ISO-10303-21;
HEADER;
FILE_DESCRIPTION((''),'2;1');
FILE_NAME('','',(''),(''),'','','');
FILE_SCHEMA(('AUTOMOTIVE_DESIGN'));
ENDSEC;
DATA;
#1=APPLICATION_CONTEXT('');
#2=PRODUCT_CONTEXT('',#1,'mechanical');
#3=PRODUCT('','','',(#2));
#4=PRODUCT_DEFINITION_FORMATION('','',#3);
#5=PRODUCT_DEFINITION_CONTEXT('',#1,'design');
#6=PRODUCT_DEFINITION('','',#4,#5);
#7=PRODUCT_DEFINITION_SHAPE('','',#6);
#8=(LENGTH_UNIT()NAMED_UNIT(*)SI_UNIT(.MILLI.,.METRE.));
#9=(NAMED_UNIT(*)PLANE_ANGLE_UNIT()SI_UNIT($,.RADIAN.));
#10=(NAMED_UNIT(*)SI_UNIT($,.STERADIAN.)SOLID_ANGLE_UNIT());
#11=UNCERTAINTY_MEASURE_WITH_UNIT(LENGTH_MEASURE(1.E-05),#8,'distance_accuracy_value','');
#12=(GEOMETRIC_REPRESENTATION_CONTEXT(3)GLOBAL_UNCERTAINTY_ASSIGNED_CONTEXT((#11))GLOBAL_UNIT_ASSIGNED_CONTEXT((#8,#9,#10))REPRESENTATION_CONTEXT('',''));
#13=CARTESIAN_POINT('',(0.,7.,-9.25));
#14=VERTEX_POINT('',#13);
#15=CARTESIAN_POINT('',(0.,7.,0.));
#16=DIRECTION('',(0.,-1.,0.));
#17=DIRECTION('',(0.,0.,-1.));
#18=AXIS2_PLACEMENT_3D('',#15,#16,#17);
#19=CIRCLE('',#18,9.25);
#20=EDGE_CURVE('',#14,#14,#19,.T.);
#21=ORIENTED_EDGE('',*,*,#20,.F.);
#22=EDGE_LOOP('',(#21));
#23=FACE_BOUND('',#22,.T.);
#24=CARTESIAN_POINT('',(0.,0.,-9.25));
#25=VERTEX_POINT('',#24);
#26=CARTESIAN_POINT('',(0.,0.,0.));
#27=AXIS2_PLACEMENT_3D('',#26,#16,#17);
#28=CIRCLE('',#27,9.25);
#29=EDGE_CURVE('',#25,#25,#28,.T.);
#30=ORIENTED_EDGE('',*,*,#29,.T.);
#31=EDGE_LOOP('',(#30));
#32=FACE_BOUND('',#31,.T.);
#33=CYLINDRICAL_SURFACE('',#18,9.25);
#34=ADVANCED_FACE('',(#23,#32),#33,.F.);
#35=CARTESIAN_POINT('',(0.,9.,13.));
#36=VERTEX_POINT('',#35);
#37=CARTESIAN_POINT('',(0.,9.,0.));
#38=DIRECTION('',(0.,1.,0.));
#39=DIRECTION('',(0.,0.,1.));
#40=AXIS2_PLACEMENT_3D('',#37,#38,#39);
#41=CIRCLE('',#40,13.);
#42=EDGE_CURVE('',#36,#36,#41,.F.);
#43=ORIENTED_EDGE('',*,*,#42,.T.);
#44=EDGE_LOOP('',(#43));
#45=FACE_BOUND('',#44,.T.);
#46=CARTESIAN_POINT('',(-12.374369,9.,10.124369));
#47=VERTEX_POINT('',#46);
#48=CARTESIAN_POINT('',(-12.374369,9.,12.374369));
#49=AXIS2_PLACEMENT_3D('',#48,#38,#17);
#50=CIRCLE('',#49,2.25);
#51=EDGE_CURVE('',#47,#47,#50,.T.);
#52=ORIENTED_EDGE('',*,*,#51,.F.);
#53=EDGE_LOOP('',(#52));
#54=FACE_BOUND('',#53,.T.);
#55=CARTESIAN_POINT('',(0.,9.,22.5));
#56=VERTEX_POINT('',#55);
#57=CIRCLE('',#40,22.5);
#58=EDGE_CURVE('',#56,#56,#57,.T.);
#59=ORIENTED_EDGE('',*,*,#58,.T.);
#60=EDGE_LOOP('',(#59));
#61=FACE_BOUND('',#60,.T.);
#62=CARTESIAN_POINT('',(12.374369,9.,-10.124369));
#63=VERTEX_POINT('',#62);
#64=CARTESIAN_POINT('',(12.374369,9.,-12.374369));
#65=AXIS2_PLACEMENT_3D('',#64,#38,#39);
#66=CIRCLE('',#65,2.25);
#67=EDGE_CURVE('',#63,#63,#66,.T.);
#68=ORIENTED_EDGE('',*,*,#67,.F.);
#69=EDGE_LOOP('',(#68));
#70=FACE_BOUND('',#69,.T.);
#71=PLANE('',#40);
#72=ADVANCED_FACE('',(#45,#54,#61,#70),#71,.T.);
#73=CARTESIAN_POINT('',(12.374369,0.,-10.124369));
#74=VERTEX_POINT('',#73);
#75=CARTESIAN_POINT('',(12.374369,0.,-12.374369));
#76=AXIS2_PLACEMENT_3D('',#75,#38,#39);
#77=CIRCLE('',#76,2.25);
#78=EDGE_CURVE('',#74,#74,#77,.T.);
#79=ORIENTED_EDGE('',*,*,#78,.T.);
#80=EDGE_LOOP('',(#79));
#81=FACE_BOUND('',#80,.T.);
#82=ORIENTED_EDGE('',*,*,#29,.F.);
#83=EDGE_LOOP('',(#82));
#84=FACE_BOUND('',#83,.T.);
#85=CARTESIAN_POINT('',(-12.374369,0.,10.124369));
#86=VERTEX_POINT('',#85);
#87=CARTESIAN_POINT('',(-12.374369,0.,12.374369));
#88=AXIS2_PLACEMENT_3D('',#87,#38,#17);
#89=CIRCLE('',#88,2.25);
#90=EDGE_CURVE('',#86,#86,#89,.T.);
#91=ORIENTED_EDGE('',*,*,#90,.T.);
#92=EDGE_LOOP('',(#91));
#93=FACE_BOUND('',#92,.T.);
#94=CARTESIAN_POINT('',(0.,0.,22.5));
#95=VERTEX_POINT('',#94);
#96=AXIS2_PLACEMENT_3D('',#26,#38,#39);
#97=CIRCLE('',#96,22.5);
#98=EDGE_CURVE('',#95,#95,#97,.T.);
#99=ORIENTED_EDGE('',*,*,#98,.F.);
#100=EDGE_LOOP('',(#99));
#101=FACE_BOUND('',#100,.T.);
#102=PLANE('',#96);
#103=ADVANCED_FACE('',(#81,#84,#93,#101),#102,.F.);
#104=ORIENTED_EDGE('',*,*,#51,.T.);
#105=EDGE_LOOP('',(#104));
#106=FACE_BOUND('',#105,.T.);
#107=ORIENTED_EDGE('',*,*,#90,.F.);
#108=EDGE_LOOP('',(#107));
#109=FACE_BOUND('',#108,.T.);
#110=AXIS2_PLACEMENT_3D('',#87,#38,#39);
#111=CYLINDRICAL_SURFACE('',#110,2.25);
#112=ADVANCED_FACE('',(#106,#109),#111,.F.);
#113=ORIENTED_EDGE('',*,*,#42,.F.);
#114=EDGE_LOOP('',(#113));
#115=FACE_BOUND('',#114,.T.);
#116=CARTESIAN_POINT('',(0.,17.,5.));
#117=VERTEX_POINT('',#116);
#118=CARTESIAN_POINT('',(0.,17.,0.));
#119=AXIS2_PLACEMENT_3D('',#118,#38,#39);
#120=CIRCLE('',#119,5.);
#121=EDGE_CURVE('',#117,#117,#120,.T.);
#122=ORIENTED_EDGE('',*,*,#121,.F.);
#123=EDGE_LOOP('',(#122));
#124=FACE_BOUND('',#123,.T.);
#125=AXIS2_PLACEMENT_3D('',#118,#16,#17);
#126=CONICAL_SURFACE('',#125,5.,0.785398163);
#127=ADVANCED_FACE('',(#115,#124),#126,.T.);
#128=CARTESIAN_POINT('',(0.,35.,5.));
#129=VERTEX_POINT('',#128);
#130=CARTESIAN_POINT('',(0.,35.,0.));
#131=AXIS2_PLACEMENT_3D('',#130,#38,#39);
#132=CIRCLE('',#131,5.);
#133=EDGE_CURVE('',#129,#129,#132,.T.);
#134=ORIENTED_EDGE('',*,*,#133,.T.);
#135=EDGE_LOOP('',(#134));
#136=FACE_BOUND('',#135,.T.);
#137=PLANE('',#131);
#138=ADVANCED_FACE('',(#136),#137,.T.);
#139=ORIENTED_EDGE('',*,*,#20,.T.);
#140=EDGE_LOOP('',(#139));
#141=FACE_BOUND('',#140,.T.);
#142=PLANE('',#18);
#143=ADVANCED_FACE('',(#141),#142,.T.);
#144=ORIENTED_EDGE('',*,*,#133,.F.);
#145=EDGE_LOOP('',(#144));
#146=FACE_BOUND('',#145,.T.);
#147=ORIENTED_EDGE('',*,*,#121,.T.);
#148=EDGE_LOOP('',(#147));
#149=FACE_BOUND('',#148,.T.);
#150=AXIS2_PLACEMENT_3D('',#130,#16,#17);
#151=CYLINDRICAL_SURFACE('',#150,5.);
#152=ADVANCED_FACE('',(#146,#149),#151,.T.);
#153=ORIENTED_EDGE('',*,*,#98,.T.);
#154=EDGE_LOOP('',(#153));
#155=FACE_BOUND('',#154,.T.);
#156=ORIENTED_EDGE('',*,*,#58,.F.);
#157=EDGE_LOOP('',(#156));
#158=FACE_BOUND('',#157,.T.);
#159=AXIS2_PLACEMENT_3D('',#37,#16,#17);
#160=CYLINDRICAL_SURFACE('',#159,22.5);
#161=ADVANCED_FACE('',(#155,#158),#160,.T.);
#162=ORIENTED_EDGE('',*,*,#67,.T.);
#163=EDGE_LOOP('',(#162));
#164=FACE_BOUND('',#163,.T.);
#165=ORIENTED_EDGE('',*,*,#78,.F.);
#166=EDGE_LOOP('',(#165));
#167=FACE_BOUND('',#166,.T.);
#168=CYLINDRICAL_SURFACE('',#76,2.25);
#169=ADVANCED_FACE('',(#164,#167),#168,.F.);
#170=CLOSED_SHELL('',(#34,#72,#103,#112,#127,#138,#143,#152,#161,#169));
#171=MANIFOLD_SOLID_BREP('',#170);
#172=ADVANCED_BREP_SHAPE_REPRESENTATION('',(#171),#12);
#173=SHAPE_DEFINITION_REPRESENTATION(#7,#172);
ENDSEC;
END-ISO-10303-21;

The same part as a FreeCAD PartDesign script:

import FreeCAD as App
import Part
import Sketcher


def edges_at(feature, points):
    """Names of the edges that pass closest to the given points."""
    edges = feature.Shape.Edges
    near = lambda p: min(range(len(edges)), key=lambda i: edges[i].distToShape(Part.Vertex(*p))[0])
    return sorted({f"Edge{near(p) + 1}" for p in points})

doc = App.newDocument("Part")
params = doc.addObject("Spreadsheet::Sheet", "Params")
for row, (alias, value) in enumerate([
    ("sketch1_diameter", "45 mm"),
    ("pad1_length", "9 mm"),
    ("sketch2_diameter", "4.5 mm"),
    ("sketch3_diameter", "10 mm"),
    ("pad2_length", "26 mm"),
    ("chamfer_size", "8 mm"),
    ("sketch4_diameter", "18.5 mm"),
    ("pocket2_length", "7 mm"),
], start=1):
    params.set(f"A{row}", alias)
    params.set(f"B{row}", "=" + value)
    params.setAlias(f"B{row}", alias)

body = doc.addObject("PartDesign::Body", "Body")

# Sketch on XZ plane
sketch1 = body.newObject("Sketcher::SketchObject", "Sketch")
sketch1.AttachmentSupport = (doc.getObject("XZ_Plane"), [""])
sketch1.MapMode = "FlatFace"
sketch1.addGeometry(Part.Circle(App.Vector(0, 0, 0), App.Vector(0, 0, 1), 22), False)
sketch1.addConstraint([
    Sketcher.Constraint("Coincident", 0, 3, -1, 1),
    Sketcher.Constraint("Diameter", 0, 45.0),
])
sketch1.setExpression("Constraints[1]", "Params.sketch1_diameter")
pad1 = body.newObject("PartDesign::Pad", "Pad")
pad1.Profile = sketch1
pad1.setExpression("Length", "Params.pad1_length")
pad1.Reversed = True

# Sketch on XZ plane
sketch2 = body.newObject("Sketcher::SketchObject", "Sketch001")
sketch2.AttachmentSupport = (doc.getObject("XZ_Plane"), [""])
sketch2.MapMode = "FlatFace"
sketch2.AttachmentOffset = App.Placement(App.Vector(0, 0, -9), App.Rotation())
sketch2.addGeometry(Part.Circle(App.Vector(12.4, -12.4, 0), App.Vector(0, 0, 1), 2.2), False)
sketch2.addConstraint([
    Sketcher.Constraint("Diameter", 0, 4.5),
    Sketcher.Constraint("DistanceX", -1, 1, 0, 3, 12.374369),
    Sketcher.Constraint("DistanceY", 0, 3, -1, 1, 12.374369),
])
sketch2.setExpression("Constraints[0]", "Params.sketch2_diameter")
pocket1 = body.newObject("PartDesign::Pocket", "Pocket")
pocket1.Profile = sketch2
pocket1.Type = "ThroughAll"
pocket1.Reversed = True
doc.recompute()

polarpattern = body.newObject("PartDesign::PolarPattern", "PolarPattern")
polarpattern.Originals = [pocket1]
polarpattern.Axis = (doc.getObject("Y_Axis"), [""])
polarpattern.Angle = 360
polarpattern.Occurrences = 2
body.Tip = polarpattern

# Sketch on XZ plane
sketch3 = body.newObject("Sketcher::SketchObject", "Sketch002")
sketch3.AttachmentSupport = (doc.getObject("XZ_Plane"), [""])
sketch3.MapMode = "FlatFace"
sketch3.AttachmentOffset = App.Placement(App.Vector(0, 0, -9), App.Rotation())
sketch3.addGeometry(Part.Circle(App.Vector(0, 0, 0), App.Vector(0, 0, 1), 5), False)
sketch3.addConstraint([
    Sketcher.Constraint("Coincident", 0, 3, -1, 1),
    Sketcher.Constraint("Diameter", 0, 10.0),
])
sketch3.setExpression("Constraints[1]", "Params.sketch3_diameter")
pad2 = body.newObject("PartDesign::Pad", "Pad001")
pad2.Profile = sketch3
pad2.setExpression("Length", "Params.pad2_length")
pad2.Reversed = True
doc.recompute()

chamfer = body.newObject("PartDesign::Chamfer", "Chamfer")
chamfer.Base = (pad2, edges_at(pad2, [(-5, 9, 0)]))
chamfer.setExpression("Size", "Params.chamfer_size")

# Sketch on XZ plane
sketch4 = body.newObject("Sketcher::SketchObject", "Sketch003")
sketch4.AttachmentSupport = (doc.getObject("XZ_Plane"), [""])
sketch4.MapMode = "FlatFace"
sketch4.addGeometry(Part.Circle(App.Vector(0, 0, 0), App.Vector(0, 0, 1), 9), False)
sketch4.addConstraint([
    Sketcher.Constraint("Coincident", 0, 3, -1, 1),
    Sketcher.Constraint("Diameter", 0, 18.5),
])
sketch4.setExpression("Constraints[1]", "Params.sketch4_diameter")
pocket2 = body.newObject("PartDesign::Pocket", "Pocket001")
pocket2.Profile = sketch4
pocket2.setExpression("Length", "Params.pocket2_length")

doc.recompute()
